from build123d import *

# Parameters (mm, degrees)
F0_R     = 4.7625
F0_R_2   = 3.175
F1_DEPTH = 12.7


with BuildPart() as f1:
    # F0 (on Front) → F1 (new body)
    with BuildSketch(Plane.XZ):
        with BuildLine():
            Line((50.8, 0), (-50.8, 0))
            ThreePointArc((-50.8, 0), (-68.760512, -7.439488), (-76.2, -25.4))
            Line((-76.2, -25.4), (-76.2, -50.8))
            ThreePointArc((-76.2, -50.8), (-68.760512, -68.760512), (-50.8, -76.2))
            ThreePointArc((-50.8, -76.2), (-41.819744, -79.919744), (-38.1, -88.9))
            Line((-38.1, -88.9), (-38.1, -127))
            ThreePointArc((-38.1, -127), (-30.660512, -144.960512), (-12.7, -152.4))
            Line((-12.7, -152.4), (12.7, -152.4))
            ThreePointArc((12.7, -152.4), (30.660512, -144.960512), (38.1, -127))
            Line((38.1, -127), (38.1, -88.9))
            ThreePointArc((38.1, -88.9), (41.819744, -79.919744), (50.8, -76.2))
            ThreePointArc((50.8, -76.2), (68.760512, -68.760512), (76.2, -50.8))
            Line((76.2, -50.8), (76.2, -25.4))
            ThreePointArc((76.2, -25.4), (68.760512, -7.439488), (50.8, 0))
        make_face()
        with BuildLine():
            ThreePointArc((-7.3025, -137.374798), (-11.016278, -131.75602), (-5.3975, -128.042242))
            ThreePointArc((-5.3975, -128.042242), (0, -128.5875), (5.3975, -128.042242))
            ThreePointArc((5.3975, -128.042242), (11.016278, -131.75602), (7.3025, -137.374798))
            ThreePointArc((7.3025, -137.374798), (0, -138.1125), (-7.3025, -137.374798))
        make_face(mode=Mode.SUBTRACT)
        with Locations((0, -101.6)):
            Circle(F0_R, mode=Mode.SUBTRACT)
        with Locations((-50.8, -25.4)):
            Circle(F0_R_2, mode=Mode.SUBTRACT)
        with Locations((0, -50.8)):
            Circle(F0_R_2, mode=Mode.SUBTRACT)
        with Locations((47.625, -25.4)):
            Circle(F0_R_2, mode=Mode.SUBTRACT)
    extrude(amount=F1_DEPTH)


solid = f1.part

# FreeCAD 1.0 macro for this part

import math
import FreeCAD as App
import Part
import Sketcher

V = App.Vector
Q = App.Units.Quantity

doc = App.newDocument("Part")
body = doc.addObject("PartDesign::Body", "Body")

# Sketch on XZ plane
sketch1 = doc.addObject("Sketcher::SketchObject", "Sketch")
body.addObject(sketch1)
sketch1.AttachmentSupport = (doc.XZ_Plane, [""])
sketch1.MapMode = "FlatFace"
sketch1.addGeometry(Part.LineSegment(V(50.8, 0, 0), V(-50.8, 0, 0)), False)
sketch1.addGeometry(Part.ArcOfCircle(Part.Circle(V(-50.8, -25.4, 0), V(0, 0, 1), 25.4), math.radians(90), math.radians(180)), False)
sketch1.addGeometry(Part.LineSegment(V(-76.2, -25.4, 0), V(-76.2, -50.8, 0)), False)
sketch1.addGeometry(Part.ArcOfCircle(Part.Circle(V(-50.8, -50.8, 0), V(0, 0, 1), 25.4), math.radians(-180), math.radians(-90)), False)
sketch1.addGeometry(Part.ArcOfCircle(Part.Circle(V(-50.8, -88.9, 0), V(0, 0, 1), 12.7), math.radians(0), math.radians(90)), False)
sketch1.addGeometry(Part.LineSegment(V(-38.1, -88.9, 0), V(-38.1, -127, 0)), False)
sketch1.addGeometry(Part.ArcOfCircle(Part.Circle(V(-12.7, -127, 0), V(0, 0, 1), 25.4), math.radians(-180), math.radians(-90)), False)
sketch1.addGeometry(Part.LineSegment(V(-12.7, -152.4, 0), V(12.7, -152.4, 0)), False)
sketch1.addGeometry(Part.ArcOfCircle(Part.Circle(V(12.7, -127, 0), V(0, 0, 1), 25.4), math.radians(-90), math.radians(0)), False)
sketch1.addGeometry(Part.LineSegment(V(38.1, -127, 0), V(38.1, -88.9, 0)), False)
sketch1.addGeometry(Part.ArcOfCircle(Part.Circle(V(50.8, -88.9, 0), V(0, 0, 1), 12.7), math.radians(90), math.radians(180)), False)
sketch1.addGeometry(Part.ArcOfCircle(Part.Circle(V(50.8, -50.8, 0), V(0, 0, 1), 25.4), math.radians(-90), math.radians(0)), False)
sketch1.addGeometry(Part.LineSegment(V(76.2, -50.8, 0), V(76.2, -25.4, 0)), False)
sketch1.addGeometry(Part.ArcOfCircle(Part.Circle(V(50.8, -25.4, 0), V(0, 0, 1), 25.4), math.radians(0), math.radians(90)), False)
sketch1.addGeometry(Part.ArcOfCircle(Part.Circle(V(0, -101.6, 0), V(0, 0, 1), 36.5), math.radians(-102), math.radians(-78)), False)
sketch1.addGeometry(Part.ArcOfCircle(Part.Circle(V(-6.3, -132.7, 0), V(0, 0, 1), 4.8), math.radians(78), math.radians(258)), False)
sketch1.addGeometry(Part.ArcOfCircle(Part.Circle(V(0, -101.6, 0), V(0, 0, 1), 27), math.radians(-102), math.radians(-78)), False)
sketch1.addGeometry(Part.ArcOfCircle(Part.Circle(V(6.3, -132.7, 0), V(0, 0, 1), 4.8), math.radians(-78), math.radians(102)), False)
sketch1.addGeometry(Part.Circle(V(0, -101.6, 0), V(0, 0, 1), 4.8), False)
sketch1.addGeometry(Part.Circle(V(-50.8, -25.4, 0), V(0, 0, 1), 3.2), False)
sketch1.addGeometry(Part.Circle(V(0, -50.8, 0), V(0, 0, 1), 3.2), False)
sketch1.addGeometry(Part.Circle(V(47.6, -25.4, 0), V(0, 0, 1), 3.2), False)
sketch1.addConstraint(Sketcher.Constraint("Tangent", 0, 2, 1, 1))
sketch1.addConstraint(Sketcher.Constraint("Tangent", 1, 2, 2, 1))
sketch1.addConstraint(Sketcher.Constraint("Tangent", 2, 2, 3, 1))
sketch1.addConstraint(Sketcher.Constraint("Tangent", 3, 2, 4, 2))
sketch1.addConstraint(Sketcher.Constraint("Tangent", 4, 1, 5, 1))
sketch1.addConstraint(Sketcher.Constraint("Tangent", 5, 2, 6, 1))
sketch1.addConstraint(Sketcher.Constraint("Tangent", 6, 2, 7, 1))
sketch1.addConstraint(Sketcher.Constraint("Tangent", 7, 2, 8, 1))
sketch1.addConstraint(Sketcher.Constraint("Tangent", 8, 2, 9, 1))
sketch1.addConstraint(Sketcher.Constraint("Tangent", 9, 2, 10, 2))
sketch1.addConstraint(Sketcher.Constraint("Tangent", 10, 1, 11, 1))
sketch1.addConstraint(Sketcher.Constraint("Tangent", 11, 2, 12, 1))
sketch1.addConstraint(Sketcher.Constraint("Tangent", 12, 2, 13, 1))
sketch1.addConstraint(Sketcher.Constraint("Tangent", 13, 2, 0, 1))
sketch1.addConstraint(Sketcher.Constraint("Tangent", 14, 1, 15, 2))
sketch1.addConstraint(Sketcher.Constraint("Tangent", 15, 1, 16, 1))
sketch1.addConstraint(Sketcher.Constraint("Tangent", 16, 2, 17, 2))
sketch1.addConstraint(Sketcher.Constraint("Tangent", 17, 1, 14, 2))
sketch1.addConstraint(Sketcher.Constraint("Horizontal", 0))
sketch1.addConstraint(Sketcher.Constraint("Vertical", 2))
sketch1.addConstraint(Sketcher.Constraint("Vertical", 5))
sketch1.addConstraint(Sketcher.Constraint("Horizontal", 7))
sketch1.addConstraint(Sketcher.Constraint("Vertical", 9))
sketch1.addConstraint(Sketcher.Constraint("Vertical", 12))
sketch1.addConstraint(Sketcher.Constraint("Coincident", 16, 3, 14, 3))
sketch1.addConstraint(Sketcher.Constraint("Coincident", 19, 3, 1, 3))
sketch1.addConstraint(Sketcher.Constraint("Equal", 1, 3))
sketch1.addConstraint(Sketcher.Constraint("Equal", 3, 6))
sketch1.addConstraint(Sketcher.Constraint("Equal", 6, 8))
sketch1.addConstraint(Sketcher.Constraint("Equal", 4, 10))
sketch1.addConstraint(Sketcher.Constraint("Equal", 8, 11))
sketch1.addConstraint(Sketcher.Constraint("Equal", 11, 13))
sketch1.addConstraint(Sketcher.Constraint("Equal", 17, 18))
sketch1.addConstraint(Sketcher.Constraint("Equal", 19, 20))
sketch1.addConstraint(Sketcher.Constraint("Equal", 20, 21))
sketch1.addConstraint(Sketcher.Constraint("Symmetric", 0, 2, 13, 2, -1, 1))
sketch1.addConstraint(Sketcher.Constraint("Symmetric", 4, 3, 10, 3, -2))
sketch1.addConstraint(Sketcher.Constraint("Symmetric", 15, 3, 17, 3, -2))
sketch1.addConstraint(Sketcher.Constraint("PointOnObject", 18, 3, -2))
sketch1.addConstraint(Sketcher.Constraint("PointOnObject", 20, 3, -2))
sketch1.addConstraint(Sketcher.Constraint("Horizontal", 11, 3, 20, 3))
sketch1.addConstraint(Sketcher.Constraint("Horizontal", 19, 3, 21, 3))
sketch1.addConstraint(Sketcher.Constraint("Vertical", 3, 3, 4, 3))
sketch1.addConstraint(Sketcher.Constraint("Equal", 7, 2))
sketch1.addConstraint(Sketcher.Constraint("Radius", 1, Q("1 in")))
sketch1.addConstraint(Sketcher.Constraint("Radius", 4, Q("0.5 in")))
sketch1.addConstraint(Sketcher.Constraint("Diameter", 19, Q("0.25 in")))
sketch1.addConstraint(Sketcher.Constraint("DistanceX", 0, 2, 0, 1, Q("4 in")))
sketch1.addConstraint(Sketcher.Constraint("Diameter", 18, Q("0.375 in")))
sketch1.addConstraint(Sketcher.Constraint("DistanceY", 5, 2, 5, 1, Q("1.5 in")))
sketch1.addConstraint(Sketcher.Constraint("DistanceY", 18, 3, -1, 1, Q("4 in")))
sketch1.addConstraint(Sketcher.Constraint("DistanceX", 15, 3, 17, 3, Q("0.5 in")))
sketch1.addConstraint(Sketcher.Constraint("DistanceX", -1, 1, 21, 3, Q("1.875 in")))
sketch1.addConstraint(Sketcher.Constraint("Radius", 16, 26.987511))
sketch1.addConstraint(Sketcher.Constraint("DistanceY", 14, 1, 6, 3, 10.374799))
pad1 = doc.addObject("PartDesign::Pad", "Pad")
body.addObject(pad1)
pad1.Profile = sketch1
pad1.Length = Q("0.5 in")

doc.recompute()
